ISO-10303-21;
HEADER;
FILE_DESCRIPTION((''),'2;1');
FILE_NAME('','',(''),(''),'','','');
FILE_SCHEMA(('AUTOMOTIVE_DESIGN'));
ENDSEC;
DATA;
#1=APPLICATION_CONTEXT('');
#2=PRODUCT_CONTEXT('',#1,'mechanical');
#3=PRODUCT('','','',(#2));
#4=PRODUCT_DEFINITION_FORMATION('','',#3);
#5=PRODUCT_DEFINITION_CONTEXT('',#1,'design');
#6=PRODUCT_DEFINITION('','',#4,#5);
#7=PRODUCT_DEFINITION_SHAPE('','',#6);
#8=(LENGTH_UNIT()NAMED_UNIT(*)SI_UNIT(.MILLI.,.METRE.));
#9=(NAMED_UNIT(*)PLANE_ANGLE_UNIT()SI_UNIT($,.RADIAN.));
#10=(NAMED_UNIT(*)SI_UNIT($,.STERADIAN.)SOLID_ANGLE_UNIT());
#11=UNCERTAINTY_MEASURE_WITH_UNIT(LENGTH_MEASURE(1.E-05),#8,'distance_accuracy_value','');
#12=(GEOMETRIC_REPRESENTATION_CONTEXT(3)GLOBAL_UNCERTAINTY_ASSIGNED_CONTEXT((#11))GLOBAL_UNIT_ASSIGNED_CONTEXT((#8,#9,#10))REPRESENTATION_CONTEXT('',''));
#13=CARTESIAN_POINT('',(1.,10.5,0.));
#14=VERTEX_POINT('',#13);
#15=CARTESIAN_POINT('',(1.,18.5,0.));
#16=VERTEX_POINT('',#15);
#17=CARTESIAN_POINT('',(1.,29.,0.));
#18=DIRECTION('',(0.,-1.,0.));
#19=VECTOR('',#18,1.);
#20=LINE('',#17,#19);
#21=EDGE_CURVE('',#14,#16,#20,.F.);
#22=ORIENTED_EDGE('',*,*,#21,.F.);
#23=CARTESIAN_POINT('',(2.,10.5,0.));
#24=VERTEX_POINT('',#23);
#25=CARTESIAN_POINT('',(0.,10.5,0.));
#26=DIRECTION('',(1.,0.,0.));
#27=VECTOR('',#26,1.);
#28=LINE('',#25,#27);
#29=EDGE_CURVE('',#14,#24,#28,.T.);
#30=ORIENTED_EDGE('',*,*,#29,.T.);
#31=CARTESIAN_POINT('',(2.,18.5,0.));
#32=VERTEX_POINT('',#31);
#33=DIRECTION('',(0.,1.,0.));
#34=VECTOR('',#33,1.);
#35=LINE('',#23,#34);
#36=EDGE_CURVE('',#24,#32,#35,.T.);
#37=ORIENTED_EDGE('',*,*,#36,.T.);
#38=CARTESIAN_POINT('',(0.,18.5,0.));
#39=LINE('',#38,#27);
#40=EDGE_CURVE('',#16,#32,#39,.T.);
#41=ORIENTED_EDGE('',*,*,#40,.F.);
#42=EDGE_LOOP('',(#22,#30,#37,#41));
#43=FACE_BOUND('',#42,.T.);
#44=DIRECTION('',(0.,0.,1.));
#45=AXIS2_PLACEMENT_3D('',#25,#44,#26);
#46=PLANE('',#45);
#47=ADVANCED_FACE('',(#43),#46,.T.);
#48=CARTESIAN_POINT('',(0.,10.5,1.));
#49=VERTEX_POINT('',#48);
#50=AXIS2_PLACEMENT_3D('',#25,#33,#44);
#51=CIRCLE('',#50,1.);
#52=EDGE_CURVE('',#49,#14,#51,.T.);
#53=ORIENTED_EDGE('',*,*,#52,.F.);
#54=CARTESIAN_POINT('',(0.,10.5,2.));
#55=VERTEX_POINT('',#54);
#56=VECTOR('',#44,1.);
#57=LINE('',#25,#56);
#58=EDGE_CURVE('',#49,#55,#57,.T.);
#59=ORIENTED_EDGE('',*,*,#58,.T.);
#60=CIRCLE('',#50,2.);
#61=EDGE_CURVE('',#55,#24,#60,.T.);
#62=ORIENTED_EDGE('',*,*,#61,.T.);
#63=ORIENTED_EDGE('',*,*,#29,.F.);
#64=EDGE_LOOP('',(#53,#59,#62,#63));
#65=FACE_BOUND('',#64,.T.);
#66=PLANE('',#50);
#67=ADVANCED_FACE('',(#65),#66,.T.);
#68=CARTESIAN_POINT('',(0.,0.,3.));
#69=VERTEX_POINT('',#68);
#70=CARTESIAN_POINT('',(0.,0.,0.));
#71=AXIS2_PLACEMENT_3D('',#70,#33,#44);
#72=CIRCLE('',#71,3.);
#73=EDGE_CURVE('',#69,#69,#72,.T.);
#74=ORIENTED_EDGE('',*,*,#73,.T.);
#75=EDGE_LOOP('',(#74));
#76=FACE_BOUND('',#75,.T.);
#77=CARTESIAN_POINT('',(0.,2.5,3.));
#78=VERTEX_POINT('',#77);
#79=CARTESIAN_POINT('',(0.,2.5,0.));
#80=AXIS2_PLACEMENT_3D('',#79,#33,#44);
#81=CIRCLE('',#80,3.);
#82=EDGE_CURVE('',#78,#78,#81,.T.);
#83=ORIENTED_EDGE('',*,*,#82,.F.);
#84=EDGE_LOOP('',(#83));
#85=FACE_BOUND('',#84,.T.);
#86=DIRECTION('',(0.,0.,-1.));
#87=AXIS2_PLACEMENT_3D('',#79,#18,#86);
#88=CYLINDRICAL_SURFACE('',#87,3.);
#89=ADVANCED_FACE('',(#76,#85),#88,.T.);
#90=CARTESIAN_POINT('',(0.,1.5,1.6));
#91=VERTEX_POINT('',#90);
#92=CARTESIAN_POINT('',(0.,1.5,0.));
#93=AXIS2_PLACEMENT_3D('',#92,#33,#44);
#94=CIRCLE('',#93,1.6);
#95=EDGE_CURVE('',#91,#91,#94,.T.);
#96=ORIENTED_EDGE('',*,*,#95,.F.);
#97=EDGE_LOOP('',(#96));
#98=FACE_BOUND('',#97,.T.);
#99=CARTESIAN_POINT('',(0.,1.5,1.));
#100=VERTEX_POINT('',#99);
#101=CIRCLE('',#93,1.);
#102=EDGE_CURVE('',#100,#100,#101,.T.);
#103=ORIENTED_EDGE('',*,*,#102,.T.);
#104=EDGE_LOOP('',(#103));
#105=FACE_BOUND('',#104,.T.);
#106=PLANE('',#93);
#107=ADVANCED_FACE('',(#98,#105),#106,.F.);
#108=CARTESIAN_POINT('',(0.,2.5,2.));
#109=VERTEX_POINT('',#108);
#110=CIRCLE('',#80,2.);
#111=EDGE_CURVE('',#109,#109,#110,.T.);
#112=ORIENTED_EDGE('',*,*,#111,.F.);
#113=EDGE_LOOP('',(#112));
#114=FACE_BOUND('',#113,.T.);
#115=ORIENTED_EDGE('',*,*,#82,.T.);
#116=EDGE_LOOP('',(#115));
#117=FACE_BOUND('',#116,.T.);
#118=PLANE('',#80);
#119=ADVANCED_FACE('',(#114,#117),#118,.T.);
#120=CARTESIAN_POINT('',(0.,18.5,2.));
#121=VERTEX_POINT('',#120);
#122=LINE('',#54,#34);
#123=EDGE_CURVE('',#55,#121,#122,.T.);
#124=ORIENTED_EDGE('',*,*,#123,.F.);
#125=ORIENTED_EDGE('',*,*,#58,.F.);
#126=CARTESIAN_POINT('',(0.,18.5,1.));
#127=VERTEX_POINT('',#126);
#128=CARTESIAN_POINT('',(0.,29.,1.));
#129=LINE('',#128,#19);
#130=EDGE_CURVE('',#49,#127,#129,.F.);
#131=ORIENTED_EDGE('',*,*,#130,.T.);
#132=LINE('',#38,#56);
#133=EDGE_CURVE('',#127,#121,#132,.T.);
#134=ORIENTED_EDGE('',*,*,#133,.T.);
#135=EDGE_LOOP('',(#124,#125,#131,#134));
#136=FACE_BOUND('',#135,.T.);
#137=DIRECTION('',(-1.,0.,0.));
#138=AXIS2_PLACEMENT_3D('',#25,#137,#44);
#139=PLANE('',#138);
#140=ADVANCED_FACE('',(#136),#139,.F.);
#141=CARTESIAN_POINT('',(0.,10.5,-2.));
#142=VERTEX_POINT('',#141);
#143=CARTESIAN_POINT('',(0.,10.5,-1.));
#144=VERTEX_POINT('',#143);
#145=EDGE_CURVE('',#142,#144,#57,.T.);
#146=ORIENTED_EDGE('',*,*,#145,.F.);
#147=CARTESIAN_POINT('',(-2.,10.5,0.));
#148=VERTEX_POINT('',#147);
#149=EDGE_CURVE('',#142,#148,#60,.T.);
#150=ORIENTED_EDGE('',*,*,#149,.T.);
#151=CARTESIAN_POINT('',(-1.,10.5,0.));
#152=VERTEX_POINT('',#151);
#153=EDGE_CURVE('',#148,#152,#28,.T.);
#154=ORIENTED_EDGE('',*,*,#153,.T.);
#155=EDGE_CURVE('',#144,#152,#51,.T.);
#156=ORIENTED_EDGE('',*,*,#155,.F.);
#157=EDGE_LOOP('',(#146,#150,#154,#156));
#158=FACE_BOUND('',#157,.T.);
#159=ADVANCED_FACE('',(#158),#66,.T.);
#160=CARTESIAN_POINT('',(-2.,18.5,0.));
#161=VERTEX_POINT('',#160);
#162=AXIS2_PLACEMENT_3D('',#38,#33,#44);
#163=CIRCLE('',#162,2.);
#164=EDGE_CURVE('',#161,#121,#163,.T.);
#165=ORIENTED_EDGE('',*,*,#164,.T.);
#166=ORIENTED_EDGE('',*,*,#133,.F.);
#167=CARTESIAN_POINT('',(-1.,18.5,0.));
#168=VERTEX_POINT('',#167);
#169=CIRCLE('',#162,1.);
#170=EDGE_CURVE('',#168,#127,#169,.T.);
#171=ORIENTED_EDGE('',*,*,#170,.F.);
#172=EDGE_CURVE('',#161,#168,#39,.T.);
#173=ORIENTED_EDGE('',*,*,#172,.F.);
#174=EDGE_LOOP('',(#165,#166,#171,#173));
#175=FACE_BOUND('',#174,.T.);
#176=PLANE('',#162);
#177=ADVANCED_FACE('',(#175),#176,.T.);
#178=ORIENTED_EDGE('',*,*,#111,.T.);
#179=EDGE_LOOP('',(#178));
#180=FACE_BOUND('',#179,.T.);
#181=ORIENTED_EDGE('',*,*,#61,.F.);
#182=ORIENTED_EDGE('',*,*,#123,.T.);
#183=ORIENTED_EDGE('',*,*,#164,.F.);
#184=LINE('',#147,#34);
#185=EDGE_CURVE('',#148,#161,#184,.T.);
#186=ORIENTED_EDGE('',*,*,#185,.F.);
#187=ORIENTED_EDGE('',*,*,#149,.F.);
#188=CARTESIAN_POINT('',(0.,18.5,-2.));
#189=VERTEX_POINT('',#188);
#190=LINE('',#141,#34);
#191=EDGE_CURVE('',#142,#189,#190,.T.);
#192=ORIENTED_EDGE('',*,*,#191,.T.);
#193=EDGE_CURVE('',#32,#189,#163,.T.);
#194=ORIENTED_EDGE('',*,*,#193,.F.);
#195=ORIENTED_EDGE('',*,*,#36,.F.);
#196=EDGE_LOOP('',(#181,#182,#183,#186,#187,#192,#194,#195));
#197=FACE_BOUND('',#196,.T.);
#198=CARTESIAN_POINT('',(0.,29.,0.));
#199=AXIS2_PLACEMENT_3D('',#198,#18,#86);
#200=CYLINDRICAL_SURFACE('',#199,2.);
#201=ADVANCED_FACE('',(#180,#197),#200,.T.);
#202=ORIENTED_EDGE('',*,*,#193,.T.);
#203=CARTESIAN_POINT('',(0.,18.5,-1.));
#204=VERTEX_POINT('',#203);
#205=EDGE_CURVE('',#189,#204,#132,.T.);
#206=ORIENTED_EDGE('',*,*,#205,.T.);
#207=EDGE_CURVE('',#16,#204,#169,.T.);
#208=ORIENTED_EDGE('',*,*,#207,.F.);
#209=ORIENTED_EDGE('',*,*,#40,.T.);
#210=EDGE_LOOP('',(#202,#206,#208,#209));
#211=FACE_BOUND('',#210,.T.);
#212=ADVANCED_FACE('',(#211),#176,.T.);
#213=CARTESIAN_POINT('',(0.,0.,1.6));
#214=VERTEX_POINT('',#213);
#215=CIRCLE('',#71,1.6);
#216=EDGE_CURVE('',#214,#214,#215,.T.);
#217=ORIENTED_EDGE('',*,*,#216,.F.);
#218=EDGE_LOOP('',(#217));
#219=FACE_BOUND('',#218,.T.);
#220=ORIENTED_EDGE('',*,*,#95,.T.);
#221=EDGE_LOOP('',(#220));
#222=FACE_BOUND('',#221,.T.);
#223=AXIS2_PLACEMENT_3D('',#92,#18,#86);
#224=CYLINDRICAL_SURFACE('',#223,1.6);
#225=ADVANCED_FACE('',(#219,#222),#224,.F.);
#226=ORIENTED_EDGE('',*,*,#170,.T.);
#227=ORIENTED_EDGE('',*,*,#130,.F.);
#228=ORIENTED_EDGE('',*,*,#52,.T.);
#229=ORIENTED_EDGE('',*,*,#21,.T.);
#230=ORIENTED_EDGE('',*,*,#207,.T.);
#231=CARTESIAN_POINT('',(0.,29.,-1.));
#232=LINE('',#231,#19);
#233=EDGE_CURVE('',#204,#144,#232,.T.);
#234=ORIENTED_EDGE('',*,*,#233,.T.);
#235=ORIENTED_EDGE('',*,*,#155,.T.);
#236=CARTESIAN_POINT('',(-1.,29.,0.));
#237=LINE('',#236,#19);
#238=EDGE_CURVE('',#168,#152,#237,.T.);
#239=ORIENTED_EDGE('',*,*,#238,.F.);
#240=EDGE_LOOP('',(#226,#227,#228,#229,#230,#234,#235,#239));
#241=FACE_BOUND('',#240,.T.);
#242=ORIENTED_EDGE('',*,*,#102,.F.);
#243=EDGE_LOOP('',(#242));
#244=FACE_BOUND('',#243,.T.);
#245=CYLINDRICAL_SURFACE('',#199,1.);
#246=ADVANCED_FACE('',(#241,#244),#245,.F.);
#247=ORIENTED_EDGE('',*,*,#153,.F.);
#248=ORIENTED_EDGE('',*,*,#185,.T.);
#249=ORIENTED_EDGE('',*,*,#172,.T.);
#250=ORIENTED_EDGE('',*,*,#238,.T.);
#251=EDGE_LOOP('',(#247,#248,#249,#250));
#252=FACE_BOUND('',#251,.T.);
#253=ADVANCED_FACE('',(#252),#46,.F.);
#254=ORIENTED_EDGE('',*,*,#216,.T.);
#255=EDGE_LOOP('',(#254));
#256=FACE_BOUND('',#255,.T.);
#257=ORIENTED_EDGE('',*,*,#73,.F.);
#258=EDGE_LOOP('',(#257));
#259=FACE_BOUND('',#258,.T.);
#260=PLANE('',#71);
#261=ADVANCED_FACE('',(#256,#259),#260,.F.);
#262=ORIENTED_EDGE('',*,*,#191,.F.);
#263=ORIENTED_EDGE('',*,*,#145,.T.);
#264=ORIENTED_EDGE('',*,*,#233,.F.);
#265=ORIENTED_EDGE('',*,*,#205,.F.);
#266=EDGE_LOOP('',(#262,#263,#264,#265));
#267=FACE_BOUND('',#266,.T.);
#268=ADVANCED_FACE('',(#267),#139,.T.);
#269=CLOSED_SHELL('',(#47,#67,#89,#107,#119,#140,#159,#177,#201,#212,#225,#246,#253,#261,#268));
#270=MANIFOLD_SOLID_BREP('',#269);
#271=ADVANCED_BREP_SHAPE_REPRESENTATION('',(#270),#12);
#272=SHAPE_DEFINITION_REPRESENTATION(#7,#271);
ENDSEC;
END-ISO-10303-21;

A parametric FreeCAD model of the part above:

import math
import FreeCAD as App
import Part
import Sketcher
from FreeCAD import Vector
Q = App.Units.Quantity


def add_polygon(sketch, points):
    """Adds a closed chain of lines whose ends are joined by coincident constraints."""
    first, n = sketch.GeometryCount, len(points)
    for a, b in zip(points, points[1:] + points[:1]):
        sketch.addGeometry(Part.LineSegment(App.Vector(*a, 0), App.Vector(*b, 0)), False)
    for i in range(n):
        sketch.addConstraint(Sketcher.Constraint("Coincident", first + i, 2, first + (i + 1) % n, 1))

doc = App.newDocument("Part")
body = doc.addObject("PartDesign::Body", "Body")

# Sketch on XZ plane
sketch1 = body.newObject("Sketcher::SketchObject", "Sketch")
sketch1.AttachmentSupport = (doc.getObject("XZ_Plane"), [""])
sketch1.MapMode = "FlatFace"
sketch1.addGeometry(Part.Circle(Vector(0, 0, 0), Vector(0, 0, 1), 2), False)
sketch1.addGeometry(Part.Circle(Vector(0, 0, 0), Vector(0, 0, 1), 1), False)
sketch1.addConstraint(Sketcher.Constraint("Coincident", 0, 3, -1, 1))
sketch1.addConstraint(Sketcher.Constraint("Coincident", 1, 3, -1, 1))
sketch1.addConstraint(Sketcher.Constraint("Diameter", 0, Q("4 mm")))
sketch1.addConstraint(Sketcher.Constraint("Diameter", 1, Q("2 mm")))
pad1 = body.newObject("PartDesign::Pad", "Pad")
pad1.Profile = sketch1
pad1.Length = 29
pad1.Reversed = True

# Sketch on XZ plane
sketch2 = body.newObject("Sketcher::SketchObject", "Sketch001")
sketch2.AttachmentSupport = (doc.getObject("XZ_Plane"), [""])
sketch2.MapMode = "FlatFace"
sketch2.addGeometry(Part.Circle(Vector(0, 0, 0), Vector(0, 0, 1), 3), False)
sketch2.addGeometry(Part.Circle(Vector(0, 0, 0), Vector(0, 0, 1), 2), False)
sketch2.addConstraint(Sketcher.Constraint("Coincident", 0, 3, -1, 1))
sketch2.addConstraint(Sketcher.Constraint("Coincident", 1, 3, -1, 1))
sketch2.addConstraint(Sketcher.Constraint("Diameter", 0, Q("6 mm")))
sketch2.addConstraint(Sketcher.Constraint("Diameter", 1, Q("4 mm")))
pad2 = body.newObject("PartDesign::Pad", "Pad001")
pad2.Profile = sketch2
pad2.Length = 2.5
pad2.Reversed = True

# Sketch on XZ plane
sketch3 = body.newObject("Sketcher::SketchObject", "Sketch002")
sketch3.AttachmentSupport = (doc.getObject("XZ_Plane"), [""])
sketch3.MapMode = "FlatFace"
sketch3.AttachmentOffset = App.Placement(Vector(0, 0, -26.5), App.Rotation())
sketch3.addGeometry(Part.Circle(Vector(0, 0, 0), Vector(0, 0, 1), 3), False)
sketch3.addGeometry(Part.Circle(Vector(0, 0, 0), Vector(0, 0, 1), 2), False)
sketch3.addConstraint(Sketcher.Constraint("Coincident", 0, 3, -1, 1))
sketch3.addConstraint(Sketcher.Constraint("Coincident", 1, 3, -1, 1))
sketch3.addConstraint(Sketcher.Constraint("Diameter", 0, Q("6 mm")))
sketch3.addConstraint(Sketcher.Constraint("Diameter", 1, Q("4 mm")))
pad3 = body.newObject("PartDesign::Pad", "Pad002")
pad3.Profile = sketch3
pad3.Length = 2.5
pad3.Reversed = True

# Sketch on XZ plane
sketch4 = body.newObject("Sketcher::SketchObject", "Sketch003")
sketch4.AttachmentSupport = (doc.getObject("XZ_Plane"), [""])
sketch4.MapMode = "FlatFace"
sketch4.addGeometry(Part.Circle(Vector(0, 0, 0), Vector(0, 0, 1), 1.6), False)
sketch4.addConstraint(Sketcher.Constraint("Coincident", 0, 3, -1, 1))
sketch4.addConstraint(Sketcher.Constraint("Diameter", 0, Q("3.2 mm")))
pocket1 = body.newObject("PartDesign::Pocket", "Pocket")
pocket1.Profile = sketch4
pocket1.Length = 1.5

# Sketch on XZ plane
sketch5 = body.newObject("Sketcher::SketchObject", "Sketch004")
sketch5.AttachmentSupport = (doc.getObject("XZ_Plane"), [""])
sketch5.MapMode = "FlatFace"
sketch5.AttachmentOffset = App.Placement(Vector(0, 0, -29), App.Rotation())
add_polygon(sketch5, [(0, 2.309401), (2, 1.154701), (2, -1.154701), (0, -2.309401), (-2, -1.154701), (-2, 1.154701)])  # lines 0-5
sketch5.addConstraint(Sketcher.Constraint("Vertical", 1))
sketch5.addConstraint(Sketcher.Constraint("Vertical", 4))
sketch5.addConstraint(Sketcher.Constraint("Symmetric", 0, 2, 3, 2, -1, 1))
sketch5.addConstraint(Sketcher.Constraint("Symmetric", 2, 2, 5, 2, -1, 1))
sketch5.addConstraint(Sketcher.Constraint("PointOnObject", 2, 2, -2))
sketch5.addConstraint(Sketcher.Constraint("Parallel", 2, 5))
sketch5.addConstraint(Sketcher.Constraint("Horizontal", 1, 2, 3, 2))
sketch5.addConstraint(Sketcher.Constraint("Angle", 0, Q("-30 deg")))
sketch5.addConstraint(Sketcher.Constraint("DistanceX", -1, 1, 0, 2, Q("2 mm")))
sketch5.addConstraint(Sketcher.Constraint("DistanceY", 1, 2, 1, 1, Q("2.309401 mm")))
pocket2 = body.newObject("PartDesign::Pocket", "Pocket001")
pocket2.Profile = sketch5
pocket2.Length = 1.6
pocket2.Reversed = True

# Sketch on XZ plane
sketch6 = body.newObject("Sketcher::SketchObject", "Sketch005")
sketch6.AttachmentSupport = (doc.getObject("XZ_Plane"), [""])
sketch6.MapMode = "FlatFace"
sketch6.AttachmentOffset = App.Placement(Vector(0, 0, -18.5), App.Rotation())
sketch6.addGeometry(Part.Circle(Vector(0, 0, 0), Vector(0, 0, 1), 3), False)
sketch6.addConstraint(Sketcher.Constraint("Coincident", 0, 3, -1, 1))
sketch6.addConstraint(Sketcher.Constraint("Diameter", 0, Q("6 mm")))
pocket3 = body.newObject("PartDesign::Pocket", "Pocket002")
pocket3.Profile = sketch6
pocket3.Length = 10.5

# Sketch on XZ plane
sketch7 = body.newObject("Sketcher::SketchObject", "Sketch006")
sketch7.AttachmentSupport = (doc.getObject("XZ_Plane"), [""])
sketch7.MapMode = "FlatFace"
sketch7.AttachmentOffset = App.Placement(Vector(0, 0, -10.5), App.Rotation())
sketch7.addGeometry(Part.ArcOfCircle(Part.Circle(Vector(0, 0, 0), Vector(0, 0, 1), 2), math.radians(0), math.radians(90)), False)
sketch7.addGeometry(Part.LineSegment(Vector(2, 0, 0), Vector(0, 0, 0)), False)
sketch7.addGeometry(Part.LineSegment(Vector(0, 0, 0), Vector(0, 2, 0)), False)
sketch7.addGeometry(Part.LineSegment(Vector(-2, 0, 0), Vector(0, 0, 0)), False)
sketch7.addGeometry(Part.LineSegment(Vector(0, 0, 0), Vector(0, -2, 0)), False)
sketch7.addGeometry(Part.ArcOfCircle(Part.Circle(Vector(0, 0, 0), Vector(0, 0, 1), 2), math.radians(-180), math.radians(-90)), False)
sketch7.addConstraint(Sketcher.Constraint("Coincident", 0, 1, 1, 1))
sketch7.addConstraint(Sketcher.Constraint("Coincident", 1, 2, 2, 1))
sketch7.addConstraint(Sketcher.Constraint("Coincident", 2, 2, 0, 2))
sketch7.addConstraint(Sketcher.Constraint("Coincident", 3, 2, 4, 1))
sketch7.addConstraint(Sketcher.Constraint("Coincident", 4, 2, 5, 2))
sketch7.addConstraint(Sketcher.Constraint("Coincident", 5, 1, 3, 1))
sketch7.addConstraint(Sketcher.Constraint("Horizontal", 1))
sketch7.addConstraint(Sketcher.Constraint("Vertical", 2))
sketch7.addConstraint(Sketcher.Constraint("Horizontal", 3))
sketch7.addConstraint(Sketcher.Constraint("Vertical", 4))
sketch7.addConstraint(Sketcher.Constraint("Coincident", 0, 3, -1, 1))
sketch7.addConstraint(Sketcher.Constraint("Coincident", 5, 3, -1, 1))
sketch7.addConstraint(Sketcher.Constraint("Coincident", 1, 2, -1, 1))
sketch7.addConstraint(Sketcher.Constraint("Coincident", 3, 2, -1, 1))
sketch7.addConstraint(Sketcher.Constraint("Equal", 0, 5))
sketch7.addConstraint(Sketcher.Constraint("Radius", 0, Q("2 mm")))
pocket4 = body.newObject("PartDesign::Pocket", "Pocket003")
pocket4.Profile = sketch7
pocket4.Length = 8

doc.recompute()
